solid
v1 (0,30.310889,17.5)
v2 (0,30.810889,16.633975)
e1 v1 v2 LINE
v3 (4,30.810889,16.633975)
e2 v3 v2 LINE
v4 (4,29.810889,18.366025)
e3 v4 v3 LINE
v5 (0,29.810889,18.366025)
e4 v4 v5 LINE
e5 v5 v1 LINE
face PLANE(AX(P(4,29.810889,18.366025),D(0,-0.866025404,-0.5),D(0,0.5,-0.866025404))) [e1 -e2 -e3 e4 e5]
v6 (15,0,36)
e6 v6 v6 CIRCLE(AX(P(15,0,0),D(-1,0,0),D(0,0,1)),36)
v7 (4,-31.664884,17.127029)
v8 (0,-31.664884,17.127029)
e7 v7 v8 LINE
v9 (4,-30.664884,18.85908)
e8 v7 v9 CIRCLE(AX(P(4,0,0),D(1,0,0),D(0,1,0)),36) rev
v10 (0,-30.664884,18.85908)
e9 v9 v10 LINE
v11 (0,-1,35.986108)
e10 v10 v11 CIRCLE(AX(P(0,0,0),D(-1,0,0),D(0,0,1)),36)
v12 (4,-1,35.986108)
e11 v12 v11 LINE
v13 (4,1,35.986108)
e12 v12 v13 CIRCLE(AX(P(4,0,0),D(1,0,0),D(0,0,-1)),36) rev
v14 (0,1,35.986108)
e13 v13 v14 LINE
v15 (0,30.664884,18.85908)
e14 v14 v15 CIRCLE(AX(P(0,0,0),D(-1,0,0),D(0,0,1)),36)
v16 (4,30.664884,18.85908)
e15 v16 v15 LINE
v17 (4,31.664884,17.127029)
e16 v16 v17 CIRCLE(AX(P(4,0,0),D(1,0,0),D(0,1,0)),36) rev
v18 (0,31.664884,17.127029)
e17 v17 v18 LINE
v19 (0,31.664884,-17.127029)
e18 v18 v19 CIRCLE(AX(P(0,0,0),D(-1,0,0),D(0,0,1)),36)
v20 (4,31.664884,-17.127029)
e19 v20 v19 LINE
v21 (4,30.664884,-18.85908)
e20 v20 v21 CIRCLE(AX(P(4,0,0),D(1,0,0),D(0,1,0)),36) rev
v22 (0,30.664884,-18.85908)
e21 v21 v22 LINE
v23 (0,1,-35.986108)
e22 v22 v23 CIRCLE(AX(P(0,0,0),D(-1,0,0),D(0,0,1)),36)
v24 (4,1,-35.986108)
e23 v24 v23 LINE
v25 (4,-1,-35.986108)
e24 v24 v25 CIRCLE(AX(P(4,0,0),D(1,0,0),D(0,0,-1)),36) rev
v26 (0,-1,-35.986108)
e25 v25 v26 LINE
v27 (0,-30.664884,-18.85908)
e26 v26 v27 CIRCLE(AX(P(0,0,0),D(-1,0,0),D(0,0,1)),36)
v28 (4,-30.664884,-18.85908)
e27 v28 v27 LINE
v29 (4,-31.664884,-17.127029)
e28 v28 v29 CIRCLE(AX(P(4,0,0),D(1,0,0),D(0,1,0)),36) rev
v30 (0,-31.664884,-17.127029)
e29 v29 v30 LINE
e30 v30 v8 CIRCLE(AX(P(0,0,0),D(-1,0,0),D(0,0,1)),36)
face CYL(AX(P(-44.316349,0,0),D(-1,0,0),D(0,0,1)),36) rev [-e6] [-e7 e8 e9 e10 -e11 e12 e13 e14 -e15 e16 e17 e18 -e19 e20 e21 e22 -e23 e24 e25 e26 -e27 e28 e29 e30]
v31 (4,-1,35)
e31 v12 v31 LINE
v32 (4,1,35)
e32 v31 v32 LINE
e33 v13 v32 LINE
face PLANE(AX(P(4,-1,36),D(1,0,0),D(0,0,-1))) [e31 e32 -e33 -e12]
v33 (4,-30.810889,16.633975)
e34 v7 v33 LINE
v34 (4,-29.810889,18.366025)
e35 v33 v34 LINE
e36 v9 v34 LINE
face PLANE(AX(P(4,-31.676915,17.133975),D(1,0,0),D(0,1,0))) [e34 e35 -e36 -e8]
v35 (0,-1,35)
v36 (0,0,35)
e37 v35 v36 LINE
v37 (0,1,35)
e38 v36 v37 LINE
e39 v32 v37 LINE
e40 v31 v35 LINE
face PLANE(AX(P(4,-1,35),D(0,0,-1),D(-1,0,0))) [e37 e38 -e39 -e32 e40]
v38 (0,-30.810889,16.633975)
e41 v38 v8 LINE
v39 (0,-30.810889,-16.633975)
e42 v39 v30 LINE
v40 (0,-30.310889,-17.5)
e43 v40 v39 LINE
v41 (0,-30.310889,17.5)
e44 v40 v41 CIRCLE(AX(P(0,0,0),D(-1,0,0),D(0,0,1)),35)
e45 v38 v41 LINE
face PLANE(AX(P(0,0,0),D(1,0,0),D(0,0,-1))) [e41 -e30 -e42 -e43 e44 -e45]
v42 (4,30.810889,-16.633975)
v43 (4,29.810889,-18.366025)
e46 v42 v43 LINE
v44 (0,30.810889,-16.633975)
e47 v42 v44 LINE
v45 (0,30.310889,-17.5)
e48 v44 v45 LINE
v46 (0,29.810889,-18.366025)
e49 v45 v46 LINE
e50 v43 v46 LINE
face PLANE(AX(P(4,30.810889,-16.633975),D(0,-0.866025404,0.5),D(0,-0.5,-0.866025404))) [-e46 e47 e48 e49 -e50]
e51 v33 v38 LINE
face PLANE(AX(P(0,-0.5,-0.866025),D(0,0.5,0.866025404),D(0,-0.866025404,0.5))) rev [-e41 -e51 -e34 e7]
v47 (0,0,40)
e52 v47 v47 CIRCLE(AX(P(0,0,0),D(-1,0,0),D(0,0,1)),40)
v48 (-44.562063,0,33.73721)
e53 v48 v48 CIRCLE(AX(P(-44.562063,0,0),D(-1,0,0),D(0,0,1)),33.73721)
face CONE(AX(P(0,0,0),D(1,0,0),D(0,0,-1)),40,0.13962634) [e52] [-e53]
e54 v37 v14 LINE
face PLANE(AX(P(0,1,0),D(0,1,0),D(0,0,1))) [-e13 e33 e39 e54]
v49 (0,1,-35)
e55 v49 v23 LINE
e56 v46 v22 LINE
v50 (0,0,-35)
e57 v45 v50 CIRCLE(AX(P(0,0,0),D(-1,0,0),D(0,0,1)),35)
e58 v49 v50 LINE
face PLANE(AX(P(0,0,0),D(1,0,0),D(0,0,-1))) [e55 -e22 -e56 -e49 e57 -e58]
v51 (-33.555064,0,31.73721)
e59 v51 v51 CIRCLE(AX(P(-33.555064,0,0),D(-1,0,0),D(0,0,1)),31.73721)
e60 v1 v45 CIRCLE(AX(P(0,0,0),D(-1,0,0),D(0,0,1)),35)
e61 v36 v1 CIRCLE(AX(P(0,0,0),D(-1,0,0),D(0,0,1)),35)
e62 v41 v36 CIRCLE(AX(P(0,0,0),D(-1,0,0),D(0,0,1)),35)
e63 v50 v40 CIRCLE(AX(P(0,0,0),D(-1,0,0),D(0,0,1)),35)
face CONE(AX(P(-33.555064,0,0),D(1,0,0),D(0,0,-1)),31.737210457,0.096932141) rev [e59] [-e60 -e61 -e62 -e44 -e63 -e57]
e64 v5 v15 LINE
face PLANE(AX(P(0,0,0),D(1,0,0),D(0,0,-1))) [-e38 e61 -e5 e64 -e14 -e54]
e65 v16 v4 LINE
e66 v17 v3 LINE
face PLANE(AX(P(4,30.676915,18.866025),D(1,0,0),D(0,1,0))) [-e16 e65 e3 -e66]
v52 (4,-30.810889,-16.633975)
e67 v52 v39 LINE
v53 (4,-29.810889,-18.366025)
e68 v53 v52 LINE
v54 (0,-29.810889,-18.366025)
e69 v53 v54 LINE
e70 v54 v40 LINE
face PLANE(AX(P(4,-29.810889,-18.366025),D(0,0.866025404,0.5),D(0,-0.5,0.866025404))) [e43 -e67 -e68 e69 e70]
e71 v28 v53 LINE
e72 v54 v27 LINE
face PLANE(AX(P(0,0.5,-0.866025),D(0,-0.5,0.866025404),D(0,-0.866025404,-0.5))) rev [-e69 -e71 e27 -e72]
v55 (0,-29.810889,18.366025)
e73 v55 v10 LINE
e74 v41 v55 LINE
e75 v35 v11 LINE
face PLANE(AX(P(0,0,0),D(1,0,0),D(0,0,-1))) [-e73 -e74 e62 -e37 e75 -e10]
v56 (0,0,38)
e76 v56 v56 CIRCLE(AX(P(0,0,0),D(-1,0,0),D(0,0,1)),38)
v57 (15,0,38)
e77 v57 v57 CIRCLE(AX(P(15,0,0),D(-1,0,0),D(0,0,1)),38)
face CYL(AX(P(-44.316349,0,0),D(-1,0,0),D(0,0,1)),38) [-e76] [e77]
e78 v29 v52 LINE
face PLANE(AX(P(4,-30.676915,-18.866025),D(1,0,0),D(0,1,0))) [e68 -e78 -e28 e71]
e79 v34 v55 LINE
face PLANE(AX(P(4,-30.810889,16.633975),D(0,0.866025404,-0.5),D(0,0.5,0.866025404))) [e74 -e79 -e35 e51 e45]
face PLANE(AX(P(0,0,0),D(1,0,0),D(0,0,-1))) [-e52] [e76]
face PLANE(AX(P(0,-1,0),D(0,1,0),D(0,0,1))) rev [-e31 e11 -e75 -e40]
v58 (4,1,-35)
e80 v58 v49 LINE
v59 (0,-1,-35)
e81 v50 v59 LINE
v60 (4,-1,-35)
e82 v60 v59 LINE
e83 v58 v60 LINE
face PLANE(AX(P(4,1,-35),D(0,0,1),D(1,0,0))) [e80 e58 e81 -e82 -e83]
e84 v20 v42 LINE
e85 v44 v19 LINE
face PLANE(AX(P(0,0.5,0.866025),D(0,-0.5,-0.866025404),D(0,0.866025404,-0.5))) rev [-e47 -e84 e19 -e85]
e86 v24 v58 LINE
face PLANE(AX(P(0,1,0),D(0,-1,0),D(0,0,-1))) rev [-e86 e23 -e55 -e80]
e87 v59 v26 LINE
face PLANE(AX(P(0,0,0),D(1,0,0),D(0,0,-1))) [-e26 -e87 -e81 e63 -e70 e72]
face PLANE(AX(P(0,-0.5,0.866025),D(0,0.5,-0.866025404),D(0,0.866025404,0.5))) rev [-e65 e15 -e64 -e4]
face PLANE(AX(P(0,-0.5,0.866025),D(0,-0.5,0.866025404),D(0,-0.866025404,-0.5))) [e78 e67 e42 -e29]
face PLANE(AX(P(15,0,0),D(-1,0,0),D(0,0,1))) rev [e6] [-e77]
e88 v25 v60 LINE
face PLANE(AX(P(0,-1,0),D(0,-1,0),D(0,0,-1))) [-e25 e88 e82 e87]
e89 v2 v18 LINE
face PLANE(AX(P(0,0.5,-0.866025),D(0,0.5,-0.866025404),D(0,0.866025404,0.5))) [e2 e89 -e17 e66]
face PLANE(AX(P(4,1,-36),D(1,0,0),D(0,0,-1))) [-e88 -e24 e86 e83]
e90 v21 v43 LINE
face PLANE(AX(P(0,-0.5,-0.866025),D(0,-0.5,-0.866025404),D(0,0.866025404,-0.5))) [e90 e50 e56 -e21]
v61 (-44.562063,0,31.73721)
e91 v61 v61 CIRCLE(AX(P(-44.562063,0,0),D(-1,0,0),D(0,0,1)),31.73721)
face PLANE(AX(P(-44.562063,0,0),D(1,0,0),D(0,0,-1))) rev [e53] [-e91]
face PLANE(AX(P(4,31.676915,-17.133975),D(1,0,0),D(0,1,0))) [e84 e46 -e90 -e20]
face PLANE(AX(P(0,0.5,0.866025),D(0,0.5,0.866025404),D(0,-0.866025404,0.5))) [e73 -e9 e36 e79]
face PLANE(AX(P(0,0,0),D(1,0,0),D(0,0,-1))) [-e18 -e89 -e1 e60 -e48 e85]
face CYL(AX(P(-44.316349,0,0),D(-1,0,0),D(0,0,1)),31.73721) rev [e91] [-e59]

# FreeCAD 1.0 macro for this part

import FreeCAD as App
import Part
import Sketcher
from FreeCAD import Vector
Q = App.Units.Quantity

doc = App.newDocument("Part")
body = doc.addObject("PartDesign::Body", "Body")

# Sketch on XY plane
sketch1 = body.newObject("Sketcher::SketchObject", "Sketch")
sketch1.AttachmentSupport = (doc.getObject("XY_Plane"), [""])
sketch1.MapMode = "FlatFace"
sketch1.addGeometry(Part.LineSegment(Vector(-44.6, 33.7, 0), Vector(-44.6, 31.7, 0)), False)
sketch1.addGeometry(Part.LineSegment(Vector(-44.6, 31.7, 0), Vector(-33.6, 31.7, 0)), False)
sketch1.addGeometry(Part.LineSegment(Vector(-33.6, 31.7, 0), Vector(0, 35, 0)), False)
sketch1.addGeometry(Part.LineSegment(Vector(0, 35, 0), Vector(0, 36, 0)), False)
sketch1.addGeometry(Part.LineSegment(Vector(0, 36, 0), Vector(15, 36, 0)), False)
sketch1.addGeometry(Part.LineSegment(Vector(15, 36, 0), Vector(15, 38, 0)), False)
sketch1.addGeometry(Part.LineSegment(Vector(15, 38, 0), Vector(0, 38, 0)), False)
sketch1.addGeometry(Part.LineSegment(Vector(0, 38, 0), Vector(0, 40, 0)), False)
sketch1.addGeometry(Part.LineSegment(Vector(0, 40, 0), Vector(-44.6, 33.7, 0)), False)
sketch1.addConstraint(Sketcher.Constraint("Coincident", 0, 2, 1, 1))
sketch1.addConstraint(Sketcher.Constraint("Coincident", 1, 2, 2, 1))
sketch1.addConstraint(Sketcher.Constraint("Coincident", 2, 2, 3, 1))
sketch1.addConstraint(Sketcher.Constraint("Coincident", 3, 2, 4, 1))
sketch1.addConstraint(Sketcher.Constraint("Coincident", 4, 2, 5, 1))
sketch1.addConstraint(Sketcher.Constraint("Coincident", 5, 2, 6, 1))
sketch1.addConstraint(Sketcher.Constraint("Coincident", 6, 2, 7, 1))
sketch1.addConstraint(Sketcher.Constraint("Coincident", 7, 2, 8, 1))
sketch1.addConstraint(Sketcher.Constraint("Coincident", 8, 2, 0, 1))
sketch1.addConstraint(Sketcher.Constraint("Vertical", 0))
sketch1.addConstraint(Sketcher.Constraint("Horizontal", 1))
sketch1.addConstraint(Sketcher.Constraint("Vertical", 3))
sketch1.addConstraint(Sketcher.Constraint("Horizontal", 4))
sketch1.addConstraint(Sketcher.Constraint("Vertical", 5))
sketch1.addConstraint(Sketcher.Constraint("Horizontal", 6))
sketch1.addConstraint(Sketcher.Constraint("Vertical", 7))
sketch1.addConstraint(Sketcher.Constraint("PointOnObject", 2, 2, -2))
sketch1.addConstraint(Sketcher.Constraint("PointOnObject", 6, 2, -2))
sketch1.addConstraint(Sketcher.Constraint("Equal", 0, 5))
sketch1.addConstraint(Sketcher.Constraint("Equal", 5, 7))
sketch1.addConstraint(Sketcher.Constraint("DistanceX", 4, 1, 4, 2, Q("15 mm")))
sketch1.addConstraint(Sketcher.Constraint("DistanceY", 0, 2, 0, 1, Q("2 mm")))
sketch1.addConstraint(Sketcher.Constraint("DistanceY", 3, 1, 3, 2, Q("1 mm")))
sketch1.addConstraint(Sketcher.Constraint("Angle", 8, Q("-172 deg")))
sketch1.addConstraint(Sketcher.Constraint("Distance", 8, Q("45 mm")))
sketch1.addConstraint(Sketcher.Constraint("DistanceY", -1, 1, 2, 2, Q("35 mm")))
sketch1.addConstraint(Sketcher.Constraint("DistanceX", 1, 1, 1, 2, Q("11.006999 mm")))
revolution = body.newObject("PartDesign::Revolution", "Revolution")
revolution.Profile = sketch1
revolution.ReferenceAxis = (sketch1, ["H_Axis"])
revolution.Angle = 360

# Sketch on XZ plane
sketch2 = body.newObject("Sketcher::SketchObject", "Sketch001")
sketch2.AttachmentSupport = (doc.getObject("XZ_Plane"), [""])
sketch2.MapMode = "FlatFace"
sketch2.addGeometry(Part.LineSegment(Vector(0, 35, 0), Vector(0, 36, 0)), False)
sketch2.addGeometry(Part.LineSegment(Vector(0, 36, 0), Vector(4, 36, 0)), False)
sketch2.addGeometry(Part.LineSegment(Vector(4, 36, 0), Vector(4, 35, 0)), False)
sketch2.addGeometry(Part.LineSegment(Vector(4, 35, 0), Vector(0, 35, 0)), False)
sketch2.addConstraint(Sketcher.Constraint("Coincident", 0, 2, 1, 1))
sketch2.addConstraint(Sketcher.Constraint("Coincident", 1, 2, 2, 1))
sketch2.addConstraint(Sketcher.Constraint("Coincident", 2, 2, 3, 1))
sketch2.addConstraint(Sketcher.Constraint("Coincident", 3, 2, 0, 1))
sketch2.addConstraint(Sketcher.Constraint("Vertical", 0))
sketch2.addConstraint(Sketcher.Constraint("Horizontal", 1))
sketch2.addConstraint(Sketcher.Constraint("Vertical", 2))
sketch2.addConstraint(Sketcher.Constraint("Horizontal", 3))
sketch2.addConstraint(Sketcher.Constraint("PointOnObject", 0, 2, -2))
sketch2.addConstraint(Sketcher.Constraint("DistanceX", 1, 1, 1, 2, Q("4 mm")))
sketch2.addConstraint(Sketcher.Constraint("DistanceY", 0, 1, 0, 2, Q("1 mm")))
sketch2.addConstraint(Sketcher.Constraint("DistanceY", -1, 1, 0, 2, Q("36 mm")))
pad1 = body.newObject("PartDesign::Pad", "Pad")
pad1.Profile = sketch2
pad1.Length = 2
pad1.Midplane = True
doc.recompute()

polarpattern = body.newObject("PartDesign::PolarPattern", "PolarPattern")
polarpattern.Originals = [pad1]
polarpattern.Axis = (doc.getObject("X_Axis"), [""])
polarpattern.Angle = 360
polarpattern.Occurrences = 6
body.Tip = polarpattern

doc.recompute()
